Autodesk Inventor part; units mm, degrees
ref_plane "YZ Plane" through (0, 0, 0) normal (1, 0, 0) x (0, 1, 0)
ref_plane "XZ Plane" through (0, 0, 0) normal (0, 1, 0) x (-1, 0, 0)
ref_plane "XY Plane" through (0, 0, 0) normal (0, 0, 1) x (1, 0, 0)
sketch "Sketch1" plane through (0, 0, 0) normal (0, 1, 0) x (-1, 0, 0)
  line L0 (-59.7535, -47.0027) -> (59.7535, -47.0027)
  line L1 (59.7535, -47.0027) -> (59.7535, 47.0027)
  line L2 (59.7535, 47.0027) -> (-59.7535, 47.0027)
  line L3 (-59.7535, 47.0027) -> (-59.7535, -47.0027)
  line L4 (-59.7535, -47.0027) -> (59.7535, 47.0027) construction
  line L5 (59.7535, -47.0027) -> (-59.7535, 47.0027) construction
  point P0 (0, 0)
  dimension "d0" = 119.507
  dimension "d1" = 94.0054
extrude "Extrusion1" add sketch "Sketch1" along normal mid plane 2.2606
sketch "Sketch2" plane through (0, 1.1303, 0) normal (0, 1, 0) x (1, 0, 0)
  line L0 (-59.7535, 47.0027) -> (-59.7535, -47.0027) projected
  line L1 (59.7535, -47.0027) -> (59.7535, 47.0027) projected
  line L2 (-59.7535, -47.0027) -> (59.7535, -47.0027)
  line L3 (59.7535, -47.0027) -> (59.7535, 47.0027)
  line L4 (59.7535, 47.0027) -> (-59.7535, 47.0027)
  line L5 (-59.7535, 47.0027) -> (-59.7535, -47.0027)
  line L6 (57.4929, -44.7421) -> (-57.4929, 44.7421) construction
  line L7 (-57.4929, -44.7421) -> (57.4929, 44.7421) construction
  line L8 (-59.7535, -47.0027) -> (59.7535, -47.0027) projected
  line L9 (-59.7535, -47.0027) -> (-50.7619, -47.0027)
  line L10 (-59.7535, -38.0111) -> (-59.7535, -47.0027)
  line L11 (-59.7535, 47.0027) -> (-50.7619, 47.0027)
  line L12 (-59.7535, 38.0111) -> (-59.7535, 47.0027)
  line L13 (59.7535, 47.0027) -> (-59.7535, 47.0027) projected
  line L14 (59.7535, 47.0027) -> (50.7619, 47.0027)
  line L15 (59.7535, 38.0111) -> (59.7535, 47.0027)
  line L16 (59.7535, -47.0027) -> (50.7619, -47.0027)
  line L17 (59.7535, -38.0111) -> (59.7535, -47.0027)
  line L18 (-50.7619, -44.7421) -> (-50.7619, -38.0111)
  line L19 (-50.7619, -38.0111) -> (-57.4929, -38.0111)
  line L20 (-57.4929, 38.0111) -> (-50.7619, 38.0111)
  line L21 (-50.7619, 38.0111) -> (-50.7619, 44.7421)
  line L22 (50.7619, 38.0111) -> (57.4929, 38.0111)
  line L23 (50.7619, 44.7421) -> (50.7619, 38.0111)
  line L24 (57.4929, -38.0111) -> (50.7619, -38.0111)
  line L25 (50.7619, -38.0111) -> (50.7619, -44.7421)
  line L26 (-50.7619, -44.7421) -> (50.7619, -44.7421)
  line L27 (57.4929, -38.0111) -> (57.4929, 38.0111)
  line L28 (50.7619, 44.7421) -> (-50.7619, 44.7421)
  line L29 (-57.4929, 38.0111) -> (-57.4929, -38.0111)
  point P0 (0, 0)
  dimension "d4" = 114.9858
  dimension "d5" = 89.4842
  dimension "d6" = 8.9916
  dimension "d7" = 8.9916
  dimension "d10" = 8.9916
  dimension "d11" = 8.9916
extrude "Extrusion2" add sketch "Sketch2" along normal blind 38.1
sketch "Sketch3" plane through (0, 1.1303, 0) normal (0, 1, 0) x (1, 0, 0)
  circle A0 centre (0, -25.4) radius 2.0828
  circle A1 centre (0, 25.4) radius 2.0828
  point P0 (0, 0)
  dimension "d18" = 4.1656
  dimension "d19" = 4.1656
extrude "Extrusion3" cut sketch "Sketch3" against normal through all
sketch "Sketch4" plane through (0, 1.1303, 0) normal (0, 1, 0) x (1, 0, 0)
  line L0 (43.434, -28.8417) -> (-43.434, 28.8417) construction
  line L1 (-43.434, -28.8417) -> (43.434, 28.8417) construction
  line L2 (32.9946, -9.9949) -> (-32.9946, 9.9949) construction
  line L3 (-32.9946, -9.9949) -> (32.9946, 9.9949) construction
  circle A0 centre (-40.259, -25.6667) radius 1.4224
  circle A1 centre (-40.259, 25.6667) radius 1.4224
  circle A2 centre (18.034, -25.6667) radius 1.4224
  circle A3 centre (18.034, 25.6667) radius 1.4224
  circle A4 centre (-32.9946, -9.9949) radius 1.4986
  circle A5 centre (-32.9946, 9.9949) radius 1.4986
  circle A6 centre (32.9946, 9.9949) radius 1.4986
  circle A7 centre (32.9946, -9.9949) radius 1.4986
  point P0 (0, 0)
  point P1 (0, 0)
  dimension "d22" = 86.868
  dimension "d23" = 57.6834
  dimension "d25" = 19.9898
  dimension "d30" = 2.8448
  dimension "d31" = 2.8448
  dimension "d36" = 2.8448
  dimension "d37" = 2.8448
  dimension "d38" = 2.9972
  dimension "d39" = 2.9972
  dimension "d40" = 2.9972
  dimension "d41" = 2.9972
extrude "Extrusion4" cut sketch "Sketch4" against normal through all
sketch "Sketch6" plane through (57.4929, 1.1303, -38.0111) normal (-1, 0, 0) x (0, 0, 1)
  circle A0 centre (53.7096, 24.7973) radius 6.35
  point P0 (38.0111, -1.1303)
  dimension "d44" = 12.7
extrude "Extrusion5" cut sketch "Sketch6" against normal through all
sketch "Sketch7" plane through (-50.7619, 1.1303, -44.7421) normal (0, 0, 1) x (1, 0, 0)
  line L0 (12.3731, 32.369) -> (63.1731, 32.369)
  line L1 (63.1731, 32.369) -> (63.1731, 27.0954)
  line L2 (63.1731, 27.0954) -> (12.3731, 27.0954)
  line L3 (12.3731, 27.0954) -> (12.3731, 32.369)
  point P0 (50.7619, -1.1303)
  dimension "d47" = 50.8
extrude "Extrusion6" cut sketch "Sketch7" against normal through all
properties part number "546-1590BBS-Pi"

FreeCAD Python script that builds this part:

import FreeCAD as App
import Part
import Sketcher
Q = App.Units.Quantity

doc = App.newDocument("Part")
params = doc.addObject("Spreadsheet::Sheet", "Params")
for row, (alias, value) in enumerate([
    ("sketch1_width", "4.705 in"),
    ("sketch1_height", "3.701 in"),
    ("pad1_length", "0.089 in"),
    ("sketch2_width", "4.705 in"),
    ("sketch2_width2", "0.265 in"),
    ("sketch2_height", "3.701 in"),
    ("pad2_length", "1.5 in"),
    ("sketch3_diameter", "0.164 in"),
    ("sketch4_diameter", "0.112 in"),
    ("sketch4_diameter2", "0.118 in"),
    ("sketch5_diameter", "0.5 in"),
    ("sketch6_width", "2 in"),
], start=1):
    params.set(f"A{row}", alias)
    params.set(f"B{row}", "=" + value)
    params.setAlias(f"B{row}", alias)

body = doc.addObject("PartDesign::Body", "Body")

# Sketch on XZ plane
sketch1 = body.newObject("Sketcher::SketchObject", "Sketch")
sketch1.AttachmentSupport = (doc.getObject("XZ_Plane"), [""])
sketch1.MapMode = "FlatFace"
sketch1.addGeometry(Part.LineSegment(App.Vector(60, 47, 0), App.Vector(60, -47, 0)), False)
sketch1.addGeometry(Part.LineSegment(App.Vector(60, -47, 0), App.Vector(-60, -47, 0)), False)
sketch1.addGeometry(Part.LineSegment(App.Vector(-60, -47, 0), App.Vector(-60, 47, 0)), False)
sketch1.addGeometry(Part.LineSegment(App.Vector(-60, 47, 0), App.Vector(60, 47, 0)), False)
sketch1.addConstraint(Sketcher.Constraint("Coincident", 0, 2, 1, 1))
sketch1.addConstraint(Sketcher.Constraint("Coincident", 1, 2, 2, 1))
sketch1.addConstraint(Sketcher.Constraint("Coincident", 2, 2, 3, 1))
sketch1.addConstraint(Sketcher.Constraint("Coincident", 3, 2, 0, 1))
sketch1.addConstraint(Sketcher.Constraint("Vertical", 0))
sketch1.addConstraint(Sketcher.Constraint("Horizontal", 1))
sketch1.addConstraint(Sketcher.Constraint("Vertical", 2))
sketch1.addConstraint(Sketcher.Constraint("Horizontal", 3))
sketch1.addConstraint(Sketcher.Constraint("Symmetric", 0, 2, 2, 2, -1, 1))
sketch1.addConstraint(Sketcher.Constraint("DistanceX", 1, 2, 1, 1, Q("4.705 in")))
sketch1.addConstraint(Sketcher.Constraint("DistanceY", 0, 2, 0, 1, Q("3.701 in")))
sketch1.setExpression("Constraints[9]", "Params.sketch1_width")
sketch1.setExpression("Constraints[10]", "Params.sketch1_height")
pad1 = body.newObject("PartDesign::Pad", "Pad")
pad1.Profile = sketch1
pad1.setExpression("Length", "Params.pad1_length")
pad1.Midplane = True

# Sketch on XZ plane
sketch2 = body.newObject("Sketcher::SketchObject", "Sketch001")
sketch2.AttachmentSupport = (doc.getObject("XZ_Plane"), [""])
sketch2.MapMode = "FlatFace"
sketch2.AttachmentOffset = App.Placement(App.Vector(0, 0, -0.0445 * 25.4), App.Rotation())
sketch2.addGeometry(Part.LineSegment(App.Vector(60, -47, 0), App.Vector(-60, -47, 0)), False)
sketch2.addGeometry(Part.LineSegment(App.Vector(-60, -47, 0), App.Vector(-60, 47, 0)), False)
sketch2.addGeometry(Part.LineSegment(App.Vector(-60, 47, 0), App.Vector(60, 47, 0)), False)
sketch2.addGeometry(Part.LineSegment(App.Vector(60, 47, 0), App.Vector(60, -47, 0)), False)
sketch2.addGeometry(Part.LineSegment(App.Vector(51, 45, 0), App.Vector(-51, 45, 0)), False)
sketch2.addGeometry(Part.LineSegment(App.Vector(-51, 45, 0), App.Vector(-51, 38, 0)), False)
sketch2.addGeometry(Part.LineSegment(App.Vector(-51, 38, 0), App.Vector(-57, 38, 0)), False)
sketch2.addGeometry(Part.LineSegment(App.Vector(-57, 38, 0), App.Vector(-57, -38, 0)), False)
sketch2.addGeometry(Part.LineSegment(App.Vector(-57, -38, 0), App.Vector(-51, -38, 0)), False)
sketch2.addGeometry(Part.LineSegment(App.Vector(-51, -38, 0), App.Vector(-51, -45, 0)), False)
sketch2.addGeometry(Part.LineSegment(App.Vector(-51, -45, 0), App.Vector(51, -45, 0)), False)
sketch2.addGeometry(Part.LineSegment(App.Vector(51, -45, 0), App.Vector(51, -38, 0)), False)
sketch2.addGeometry(Part.LineSegment(App.Vector(51, -38, 0), App.Vector(57, -38, 0)), False)
sketch2.addGeometry(Part.LineSegment(App.Vector(57, -38, 0), App.Vector(57, 38, 0)), False)
sketch2.addGeometry(Part.LineSegment(App.Vector(57, 38, 0), App.Vector(51, 38, 0)), False)
sketch2.addGeometry(Part.LineSegment(App.Vector(51, 38, 0), App.Vector(51, 45, 0)), False)
sketch2.addConstraint(Sketcher.Constraint("Coincident", 0, 2, 1, 1))
sketch2.addConstraint(Sketcher.Constraint("Coincident", 1, 2, 2, 1))
sketch2.addConstraint(Sketcher.Constraint("Coincident", 2, 2, 3, 1))
sketch2.addConstraint(Sketcher.Constraint("Coincident", 3, 2, 0, 1))
sketch2.addConstraint(Sketcher.Constraint("Coincident", 4, 2, 5, 1))
sketch2.addConstraint(Sketcher.Constraint("Coincident", 5, 2, 6, 1))
sketch2.addConstraint(Sketcher.Constraint("Coincident", 6, 2, 7, 1))
sketch2.addConstraint(Sketcher.Constraint("Coincident", 7, 2, 8, 1))
sketch2.addConstraint(Sketcher.Constraint("Coincident", 8, 2, 9, 1))
sketch2.addConstraint(Sketcher.Constraint("Coincident", 9, 2, 10, 1))
sketch2.addConstraint(Sketcher.Constraint("Coincident", 10, 2, 11, 1))
sketch2.addConstraint(Sketcher.Constraint("Coincident", 11, 2, 12, 1))
sketch2.addConstraint(Sketcher.Constraint("Coincident", 12, 2, 13, 1))
sketch2.addConstraint(Sketcher.Constraint("Coincident", 13, 2, 14, 1))
sketch2.addConstraint(Sketcher.Constraint("Coincident", 14, 2, 15, 1))
sketch2.addConstraint(Sketcher.Constraint("Coincident", 15, 2, 4, 1))
sketch2.addConstraint(Sketcher.Constraint("Horizontal", 0))
sketch2.addConstraint(Sketcher.Constraint("Vertical", 1))
sketch2.addConstraint(Sketcher.Constraint("Horizontal", 2))
sketch2.addConstraint(Sketcher.Constraint("Vertical", 3))
sketch2.addConstraint(Sketcher.Constraint("Horizontal", 4))
sketch2.addConstraint(Sketcher.Constraint("Vertical", 5))
sketch2.addConstraint(Sketcher.Constraint("Horizontal", 6))
sketch2.addConstraint(Sketcher.Constraint("Vertical", 7))
sketch2.addConstraint(Sketcher.Constraint("Horizontal", 8))
sketch2.addConstraint(Sketcher.Constraint("Vertical", 9))
sketch2.addConstraint(Sketcher.Constraint("Horizontal", 10))
sketch2.addConstraint(Sketcher.Constraint("Vertical", 11))
sketch2.addConstraint(Sketcher.Constraint("Horizontal", 12))
sketch2.addConstraint(Sketcher.Constraint("Vertical", 13))
sketch2.addConstraint(Sketcher.Constraint("Horizontal", 14))
sketch2.addConstraint(Sketcher.Constraint("Vertical", 15))
sketch2.addConstraint(Sketcher.Constraint("Symmetric", 0, 2, 2, 2, -1, 1))
sketch2.addConstraint(Sketcher.Constraint("Symmetric", 4, 2, 10, 2, -1, 1))
sketch2.addConstraint(Sketcher.Constraint("Symmetric", 6, 2, 12, 2, -1, 1))
sketch2.addConstraint(Sketcher.Constraint("Symmetric", 8, 2, 14, 2, -1, 1))
sketch2.addConstraint(Sketcher.Constraint("Symmetric", 8, 2, 11, 2, -2))
sketch2.addConstraint(Sketcher.Constraint("Equal", 14, 5))
sketch2.addConstraint(Sketcher.Constraint("DistanceX", 1, 2, 4, 2, Q("0.354 in")))
sketch2.addConstraint(Sketcher.Constraint("DistanceY", 5, 2, 1, 2, Q("0.354 in")))
sketch2.addConstraint(Sketcher.Constraint("DistanceX", 0, 2, 0, 1, Q("4.705 in")))
sketch2.addConstraint(Sketcher.Constraint("DistanceX", 6, 2, 6, 1, Q("0.265 in")))
sketch2.addConstraint(Sketcher.Constraint("DistanceY", 1, 1, 1, 2, Q("3.701 in")))
sketch2.setExpression("Constraints[40]", "Params.sketch2_width")
sketch2.setExpression("Constraints[41]", "Params.sketch2_width2")
sketch2.setExpression("Constraints[42]", "Params.sketch2_height")
pad2 = body.newObject("PartDesign::Pad", "Pad001")
pad2.Profile = sketch2
pad2.setExpression("Length", "Params.pad2_length")
pad2.Reversed = True

# Sketch on XZ plane
sketch3 = body.newObject("Sketcher::SketchObject", "Sketch002")
sketch3.AttachmentSupport = (doc.getObject("XZ_Plane"), [""])
sketch3.MapMode = "FlatFace"
sketch3.AttachmentOffset = App.Placement(App.Vector(0, 0, -0.0445 * 25.4), App.Rotation())
sketch3.addGeometry(Part.Circle(App.Vector(0, 25.4, 0), App.Vector(0, 0, 1), 2.1), False)
sketch3.addGeometry(Part.Circle(App.Vector(0, -25.4, 0), App.Vector(0, 0, 1), 2.1), False)
sketch3.addConstraint(Sketcher.Constraint("Equal", 0, 1))
sketch3.addConstraint(Sketcher.Constraint("Symmetric", 0, 3, 1, 3, -1, 1))
sketch3.addConstraint(Sketcher.Constraint("PointOnObject", 0, 3, -2))
sketch3.addConstraint(Sketcher.Constraint("Diameter", 0, Q("0.164 in")))
sketch3.addConstraint(Sketcher.Constraint("DistanceY", -1, 1, 0, 3, Q("1 in")))
sketch3.setExpression("Constraints[3]", "Params.sketch3_diameter")
pocket1 = body.newObject("PartDesign::Pocket", "Pocket")
pocket1.Profile = sketch3
pocket1.Type = "ThroughAll"
pocket1.Reversed = True

# Sketch on XZ plane
sketch4 = body.newObject("Sketcher::SketchObject", "Sketch003")
sketch4.AttachmentSupport = (doc.getObject("XZ_Plane"), [""])
sketch4.MapMode = "FlatFace"
sketch4.AttachmentOffset = App.Placement(App.Vector(0, 0, -0.0445 * 25.4), App.Rotation())
sketch4.addGeometry(Part.Circle(App.Vector(-40.3, 25.7, 0), App.Vector(0, 0, 1), 1.4), False)
sketch4.addGeometry(Part.Circle(App.Vector(-40.3, -25.7, 0), App.Vector(0, 0, 1), 1.4), False)
sketch4.addGeometry(Part.Circle(App.Vector(18, 25.7, 0), App.Vector(0, 0, 1), 1.4), False)
sketch4.addGeometry(Part.Circle(App.Vector(18, -25.7, 0), App.Vector(0, 0, 1), 1.4), False)
sketch4.addGeometry(Part.Circle(App.Vector(-33, 10, 0), App.Vector(0, 0, 1), 1.5), False)
sketch4.addGeometry(Part.Circle(App.Vector(-33, -10, 0), App.Vector(0, 0, 1), 1.5), False)
sketch4.addGeometry(Part.Circle(App.Vector(33, -10, 0), App.Vector(0, 0, 1), 1.5), False)
sketch4.addGeometry(Part.Circle(App.Vector(33, 10, 0), App.Vector(0, 0, 1), 1.5), False)
sketch4.addConstraint(Sketcher.Constraint("Equal", 0, 1))
sketch4.addConstraint(Sketcher.Constraint("Equal", 1, 2))
sketch4.addConstraint(Sketcher.Constraint("Equal", 2, 3))
sketch4.addConstraint(Sketcher.Constraint("Equal", 4, 5))
sketch4.addConstraint(Sketcher.Constraint("Equal", 5, 6))
sketch4.addConstraint(Sketcher.Constraint("Equal", 6, 7))
sketch4.addConstraint(Sketcher.Constraint("Symmetric", 4, 3, 6, 3, -1, 1))
sketch4.addConstraint(Sketcher.Constraint("Symmetric", 5, 3, 7, 3, -1, 1))
sketch4.addConstraint(Sketcher.Constraint("Symmetric", 5, 3, 6, 3, -2))
sketch4.addConstraint(Sketcher.Constraint("Symmetric", 0, 3, 1, 3, -1))
sketch4.addConstraint(Sketcher.Constraint("Symmetric", 2, 3, 3, 3, -1))
sketch4.addConstraint(Sketcher.Constraint("Horizontal", 0, 3, 2, 3))
sketch4.addConstraint(Sketcher.Constraint("Diameter", 0, Q("0.112 in")))
sketch4.addConstraint(Sketcher.Constraint("Diameter", 4, Q("0.118 in")))
sketch4.addConstraint(Sketcher.Constraint("DistanceY", 5, 3, 4, 3, Q("0.787 in")))
sketch4.addConstraint(Sketcher.Constraint("DistanceX", -1, 1, 2, 3, Q("0.71 in")))
sketch4.addConstraint(Sketcher.Constraint("DistanceX", 0, 3, -1, 1, Q("1.585 in")))
sketch4.addConstraint(Sketcher.Constraint("DistanceX", 4, 3, -1, 1, Q("1.299 in")))
sketch4.addConstraint(Sketcher.Constraint("DistanceY", 1, 3, 0, 3, Q("2.021 in")))
sketch4.setExpression("Constraints[12]", "Params.sketch4_diameter")
sketch4.setExpression("Constraints[13]", "Params.sketch4_diameter2")
pocket2 = body.newObject("PartDesign::Pocket", "Pocket001")
pocket2.Profile = sketch4
pocket2.Type = "ThroughAll"
pocket2.Reversed = True

# Sketch on YZ plane
sketch5 = body.newObject("Sketcher::SketchObject", "Sketch004")
sketch5.AttachmentSupport = (doc.getObject("YZ_Plane"), [""])
sketch5.MapMode = "FlatFace"
sketch5.AttachmentOffset = App.Placement(App.Vector(0, 0, 2.2635 * 25.4), App.Rotation())
sketch5.addGeometry(Part.Circle(App.Vector(26, 16, 0), App.Vector(0, 0, 1), 6), False)
sketch5.addConstraint(Sketcher.Constraint("Diameter", 0, Q("0.5 in")))
sketch5.addConstraint(Sketcher.Constraint("DistanceX", -1, 1, 0, 3, Q("25.9276 mm")))
sketch5.addConstraint(Sketcher.Constraint("DistanceY", -1, 1, 0, 3, Q("15.6985 mm")))
sketch5.setExpression("Constraints[0]", "Params.sketch5_diameter")
pocket3 = body.newObject("PartDesign::Pocket", "Pocket002")
pocket3.Profile = sketch5
pocket3.Type = "ThroughAll"
pocket3.Reversed = True

# Sketch on XY plane
sketch6 = body.newObject("Sketcher::SketchObject", "Sketch005")
sketch6.AttachmentSupport = (doc.getObject("XY_Plane"), [""])
sketch6.MapMode = "FlatFace"
sketch6.AttachmentOffset = App.Placement(App.Vector(0, 0, -1.7615 * 25.4), App.Rotation())
sketch6.addGeometry(Part.LineSegment(App.Vector(12, 33, 0), App.Vector(-38, 33, 0)), False)
sketch6.addGeometry(Part.LineSegment(App.Vector(-38, 33, 0), App.Vector(-38, 28, 0)), False)
sketch6.addGeometry(Part.LineSegment(App.Vector(-38, 28, 0), App.Vector(12, 28, 0)), False)
sketch6.addGeometry(Part.LineSegment(App.Vector(12, 28, 0), App.Vector(12, 33, 0)), False)
sketch6.addConstraint(Sketcher.Constraint("Coincident", 0, 2, 1, 1))
sketch6.addConstraint(Sketcher.Constraint("Coincident", 1, 2, 2, 1))
sketch6.addConstraint(Sketcher.Constraint("Coincident", 2, 2, 3, 1))
sketch6.addConstraint(Sketcher.Constraint("Coincident", 3, 2, 0, 1))
sketch6.addConstraint(Sketcher.Constraint("Horizontal", 0))
sketch6.addConstraint(Sketcher.Constraint("Vertical", 1))
sketch6.addConstraint(Sketcher.Constraint("Horizontal", 2))
sketch6.addConstraint(Sketcher.Constraint("Vertical", 3))
sketch6.addConstraint(Sketcher.Constraint("DistanceX", 0, 2, 0, 1, Q("2 in")))
sketch6.addConstraint(Sketcher.Constraint("DistanceY", 1, 2, 1, 1, Q("5.2736 mm")))
sketch6.addConstraint(Sketcher.Constraint("DistanceX", 0, 2, -1, 1, Q("38.3888 mm")))
sketch6.addConstraint(Sketcher.Constraint("DistanceY", -1, 1, 0, 2, Q("33.4993 mm")))
sketch6.setExpression("Constraints[8]", "Params.sketch6_width")
pocket4 = body.newObject("PartDesign::Pocket", "Pocket003")
pocket4.Profile = sketch6
pocket4.Type = "ThroughAll"

doc.recompute()
